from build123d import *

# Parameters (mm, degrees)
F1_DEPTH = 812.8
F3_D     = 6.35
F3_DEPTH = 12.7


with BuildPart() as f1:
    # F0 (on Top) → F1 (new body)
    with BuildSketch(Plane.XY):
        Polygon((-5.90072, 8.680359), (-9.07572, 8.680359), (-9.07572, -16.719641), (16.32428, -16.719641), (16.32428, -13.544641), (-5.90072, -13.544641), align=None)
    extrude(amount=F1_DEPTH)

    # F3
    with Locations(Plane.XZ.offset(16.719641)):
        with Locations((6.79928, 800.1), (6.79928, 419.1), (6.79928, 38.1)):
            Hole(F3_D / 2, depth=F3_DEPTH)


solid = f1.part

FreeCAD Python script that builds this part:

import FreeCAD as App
import Part
import Sketcher
Q = App.Units.Quantity


def add_polygon(sketch, points):
    """Adds a closed chain of lines whose ends are joined by coincident constraints."""
    first, n = sketch.GeometryCount, len(points)
    for a, b in zip(points, points[1:] + points[:1]):
        sketch.addGeometry(Part.LineSegment(App.Vector(*a, 0), App.Vector(*b, 0)), False)
    for i in range(n):
        sketch.addConstraint(Sketcher.Constraint("Coincident", first + i, 2, first + (i + 1) % n, 1))

doc = App.newDocument("Part")
body = doc.addObject("PartDesign::Body", "Body")

sketch1 = body.newObject("Sketcher::SketchObject", "Sketch")
sketch1.AttachmentSupport = (doc.getObject("XY_Plane"), [""])
sketch1.MapMode = "FlatFace"
add_polygon(sketch1, [(-5.90072, 8.680359), (-9.07572, 8.680359), (-9.07572, -16.719641), (16.32428, -16.719641), (16.32428, -13.544641), (-5.90072, -13.544641)])
sketch1.addConstraint(Sketcher.Constraint("Horizontal", 0))
sketch1.addConstraint(Sketcher.Constraint("Vertical", 1))
sketch1.addConstraint(Sketcher.Constraint("Horizontal", 2))
sketch1.addConstraint(Sketcher.Constraint("Vertical", 3))
sketch1.addConstraint(Sketcher.Constraint("Horizontal", 4))
sketch1.addConstraint(Sketcher.Constraint("Vertical", 5))
sketch1.addConstraint(Sketcher.Constraint("Equal", 2, 1))
sketch1.addConstraint(Sketcher.Constraint("Equal", 0, 3))
sketch1.addConstraint(Sketcher.Constraint("DistanceX", 2, 1, 2, 2, Q("1 in")))
sketch1.addConstraint(Sketcher.Constraint("DistanceX", 0, 2, 0, 1, Q("0.125 in")))
sketch1.addConstraint(Sketcher.Constraint("DistanceX", 0, 2, -1, 1, 9.07572))
sketch1.addConstraint(Sketcher.Constraint("DistanceY", -1, 1, 0, 2, 8.680359))
pad1 = body.newObject("PartDesign::Pad", "Pad")
pad1.Profile = sketch1
pad1.Length = Q("32 in")

sketch2 = body.newObject("Sketcher::SketchObject", "Sketch001")
sketch2.AttachmentSupport = (doc.getObject("XZ_Plane"), [""])
sketch2.MapMode = "FlatFace"
sketch2.AttachmentOffset = App.Placement(App.Vector(0, 0, 16.719641), App.Rotation())
sketch2.addGeometry(Part.Circle(App.Vector(6.79928, 800.1, 0), App.Vector(0, 0, 1), 3.175), False)
sketch2.addGeometry(Part.Circle(App.Vector(6.79928, 419.1, 0), App.Vector(0, 0, 1), 3.175), False)
sketch2.addGeometry(Part.Circle(App.Vector(6.79928, 38.1, 0), App.Vector(0, 0, 1), 3.175), False)
sketch2.addConstraint(Sketcher.Constraint("Equal", 0, 1))
sketch2.addConstraint(Sketcher.Constraint("Equal", 1, 2))
sketch2.addConstraint(Sketcher.Constraint("Vertical", 0, 3, 1, 3))
sketch2.addConstraint(Sketcher.Constraint("Vertical", 1, 3, 2, 3))
sketch2.addConstraint(Sketcher.Constraint("Diameter", 0, Q("0.25 in")))
sketch2.addConstraint(Sketcher.Constraint("DistanceY", 1, 3, 0, 3, Q("15 in")))
sketch2.addConstraint(Sketcher.Constraint("DistanceY", 2, 3, 1, 3, Q("15 in")))
sketch2.addConstraint(Sketcher.Constraint("DistanceY", -1, 1, 0, 3, Q("31.5 in")))
sketch2.addConstraint(Sketcher.Constraint("DistanceX", -1, 1, 0, 3, 6.79928))
doc.recompute()
hole = body.newObject("PartDesign::Hole", "Hole")
hole.Profile = sketch2
hole.ThreadType = "None"
hole.Diameter = Q("0.25 in")
hole.DepthType = "Dimension"
hole.Depth = Q("0.5 in")
hole.DrillPoint = "Flat"

doc.recompute()
